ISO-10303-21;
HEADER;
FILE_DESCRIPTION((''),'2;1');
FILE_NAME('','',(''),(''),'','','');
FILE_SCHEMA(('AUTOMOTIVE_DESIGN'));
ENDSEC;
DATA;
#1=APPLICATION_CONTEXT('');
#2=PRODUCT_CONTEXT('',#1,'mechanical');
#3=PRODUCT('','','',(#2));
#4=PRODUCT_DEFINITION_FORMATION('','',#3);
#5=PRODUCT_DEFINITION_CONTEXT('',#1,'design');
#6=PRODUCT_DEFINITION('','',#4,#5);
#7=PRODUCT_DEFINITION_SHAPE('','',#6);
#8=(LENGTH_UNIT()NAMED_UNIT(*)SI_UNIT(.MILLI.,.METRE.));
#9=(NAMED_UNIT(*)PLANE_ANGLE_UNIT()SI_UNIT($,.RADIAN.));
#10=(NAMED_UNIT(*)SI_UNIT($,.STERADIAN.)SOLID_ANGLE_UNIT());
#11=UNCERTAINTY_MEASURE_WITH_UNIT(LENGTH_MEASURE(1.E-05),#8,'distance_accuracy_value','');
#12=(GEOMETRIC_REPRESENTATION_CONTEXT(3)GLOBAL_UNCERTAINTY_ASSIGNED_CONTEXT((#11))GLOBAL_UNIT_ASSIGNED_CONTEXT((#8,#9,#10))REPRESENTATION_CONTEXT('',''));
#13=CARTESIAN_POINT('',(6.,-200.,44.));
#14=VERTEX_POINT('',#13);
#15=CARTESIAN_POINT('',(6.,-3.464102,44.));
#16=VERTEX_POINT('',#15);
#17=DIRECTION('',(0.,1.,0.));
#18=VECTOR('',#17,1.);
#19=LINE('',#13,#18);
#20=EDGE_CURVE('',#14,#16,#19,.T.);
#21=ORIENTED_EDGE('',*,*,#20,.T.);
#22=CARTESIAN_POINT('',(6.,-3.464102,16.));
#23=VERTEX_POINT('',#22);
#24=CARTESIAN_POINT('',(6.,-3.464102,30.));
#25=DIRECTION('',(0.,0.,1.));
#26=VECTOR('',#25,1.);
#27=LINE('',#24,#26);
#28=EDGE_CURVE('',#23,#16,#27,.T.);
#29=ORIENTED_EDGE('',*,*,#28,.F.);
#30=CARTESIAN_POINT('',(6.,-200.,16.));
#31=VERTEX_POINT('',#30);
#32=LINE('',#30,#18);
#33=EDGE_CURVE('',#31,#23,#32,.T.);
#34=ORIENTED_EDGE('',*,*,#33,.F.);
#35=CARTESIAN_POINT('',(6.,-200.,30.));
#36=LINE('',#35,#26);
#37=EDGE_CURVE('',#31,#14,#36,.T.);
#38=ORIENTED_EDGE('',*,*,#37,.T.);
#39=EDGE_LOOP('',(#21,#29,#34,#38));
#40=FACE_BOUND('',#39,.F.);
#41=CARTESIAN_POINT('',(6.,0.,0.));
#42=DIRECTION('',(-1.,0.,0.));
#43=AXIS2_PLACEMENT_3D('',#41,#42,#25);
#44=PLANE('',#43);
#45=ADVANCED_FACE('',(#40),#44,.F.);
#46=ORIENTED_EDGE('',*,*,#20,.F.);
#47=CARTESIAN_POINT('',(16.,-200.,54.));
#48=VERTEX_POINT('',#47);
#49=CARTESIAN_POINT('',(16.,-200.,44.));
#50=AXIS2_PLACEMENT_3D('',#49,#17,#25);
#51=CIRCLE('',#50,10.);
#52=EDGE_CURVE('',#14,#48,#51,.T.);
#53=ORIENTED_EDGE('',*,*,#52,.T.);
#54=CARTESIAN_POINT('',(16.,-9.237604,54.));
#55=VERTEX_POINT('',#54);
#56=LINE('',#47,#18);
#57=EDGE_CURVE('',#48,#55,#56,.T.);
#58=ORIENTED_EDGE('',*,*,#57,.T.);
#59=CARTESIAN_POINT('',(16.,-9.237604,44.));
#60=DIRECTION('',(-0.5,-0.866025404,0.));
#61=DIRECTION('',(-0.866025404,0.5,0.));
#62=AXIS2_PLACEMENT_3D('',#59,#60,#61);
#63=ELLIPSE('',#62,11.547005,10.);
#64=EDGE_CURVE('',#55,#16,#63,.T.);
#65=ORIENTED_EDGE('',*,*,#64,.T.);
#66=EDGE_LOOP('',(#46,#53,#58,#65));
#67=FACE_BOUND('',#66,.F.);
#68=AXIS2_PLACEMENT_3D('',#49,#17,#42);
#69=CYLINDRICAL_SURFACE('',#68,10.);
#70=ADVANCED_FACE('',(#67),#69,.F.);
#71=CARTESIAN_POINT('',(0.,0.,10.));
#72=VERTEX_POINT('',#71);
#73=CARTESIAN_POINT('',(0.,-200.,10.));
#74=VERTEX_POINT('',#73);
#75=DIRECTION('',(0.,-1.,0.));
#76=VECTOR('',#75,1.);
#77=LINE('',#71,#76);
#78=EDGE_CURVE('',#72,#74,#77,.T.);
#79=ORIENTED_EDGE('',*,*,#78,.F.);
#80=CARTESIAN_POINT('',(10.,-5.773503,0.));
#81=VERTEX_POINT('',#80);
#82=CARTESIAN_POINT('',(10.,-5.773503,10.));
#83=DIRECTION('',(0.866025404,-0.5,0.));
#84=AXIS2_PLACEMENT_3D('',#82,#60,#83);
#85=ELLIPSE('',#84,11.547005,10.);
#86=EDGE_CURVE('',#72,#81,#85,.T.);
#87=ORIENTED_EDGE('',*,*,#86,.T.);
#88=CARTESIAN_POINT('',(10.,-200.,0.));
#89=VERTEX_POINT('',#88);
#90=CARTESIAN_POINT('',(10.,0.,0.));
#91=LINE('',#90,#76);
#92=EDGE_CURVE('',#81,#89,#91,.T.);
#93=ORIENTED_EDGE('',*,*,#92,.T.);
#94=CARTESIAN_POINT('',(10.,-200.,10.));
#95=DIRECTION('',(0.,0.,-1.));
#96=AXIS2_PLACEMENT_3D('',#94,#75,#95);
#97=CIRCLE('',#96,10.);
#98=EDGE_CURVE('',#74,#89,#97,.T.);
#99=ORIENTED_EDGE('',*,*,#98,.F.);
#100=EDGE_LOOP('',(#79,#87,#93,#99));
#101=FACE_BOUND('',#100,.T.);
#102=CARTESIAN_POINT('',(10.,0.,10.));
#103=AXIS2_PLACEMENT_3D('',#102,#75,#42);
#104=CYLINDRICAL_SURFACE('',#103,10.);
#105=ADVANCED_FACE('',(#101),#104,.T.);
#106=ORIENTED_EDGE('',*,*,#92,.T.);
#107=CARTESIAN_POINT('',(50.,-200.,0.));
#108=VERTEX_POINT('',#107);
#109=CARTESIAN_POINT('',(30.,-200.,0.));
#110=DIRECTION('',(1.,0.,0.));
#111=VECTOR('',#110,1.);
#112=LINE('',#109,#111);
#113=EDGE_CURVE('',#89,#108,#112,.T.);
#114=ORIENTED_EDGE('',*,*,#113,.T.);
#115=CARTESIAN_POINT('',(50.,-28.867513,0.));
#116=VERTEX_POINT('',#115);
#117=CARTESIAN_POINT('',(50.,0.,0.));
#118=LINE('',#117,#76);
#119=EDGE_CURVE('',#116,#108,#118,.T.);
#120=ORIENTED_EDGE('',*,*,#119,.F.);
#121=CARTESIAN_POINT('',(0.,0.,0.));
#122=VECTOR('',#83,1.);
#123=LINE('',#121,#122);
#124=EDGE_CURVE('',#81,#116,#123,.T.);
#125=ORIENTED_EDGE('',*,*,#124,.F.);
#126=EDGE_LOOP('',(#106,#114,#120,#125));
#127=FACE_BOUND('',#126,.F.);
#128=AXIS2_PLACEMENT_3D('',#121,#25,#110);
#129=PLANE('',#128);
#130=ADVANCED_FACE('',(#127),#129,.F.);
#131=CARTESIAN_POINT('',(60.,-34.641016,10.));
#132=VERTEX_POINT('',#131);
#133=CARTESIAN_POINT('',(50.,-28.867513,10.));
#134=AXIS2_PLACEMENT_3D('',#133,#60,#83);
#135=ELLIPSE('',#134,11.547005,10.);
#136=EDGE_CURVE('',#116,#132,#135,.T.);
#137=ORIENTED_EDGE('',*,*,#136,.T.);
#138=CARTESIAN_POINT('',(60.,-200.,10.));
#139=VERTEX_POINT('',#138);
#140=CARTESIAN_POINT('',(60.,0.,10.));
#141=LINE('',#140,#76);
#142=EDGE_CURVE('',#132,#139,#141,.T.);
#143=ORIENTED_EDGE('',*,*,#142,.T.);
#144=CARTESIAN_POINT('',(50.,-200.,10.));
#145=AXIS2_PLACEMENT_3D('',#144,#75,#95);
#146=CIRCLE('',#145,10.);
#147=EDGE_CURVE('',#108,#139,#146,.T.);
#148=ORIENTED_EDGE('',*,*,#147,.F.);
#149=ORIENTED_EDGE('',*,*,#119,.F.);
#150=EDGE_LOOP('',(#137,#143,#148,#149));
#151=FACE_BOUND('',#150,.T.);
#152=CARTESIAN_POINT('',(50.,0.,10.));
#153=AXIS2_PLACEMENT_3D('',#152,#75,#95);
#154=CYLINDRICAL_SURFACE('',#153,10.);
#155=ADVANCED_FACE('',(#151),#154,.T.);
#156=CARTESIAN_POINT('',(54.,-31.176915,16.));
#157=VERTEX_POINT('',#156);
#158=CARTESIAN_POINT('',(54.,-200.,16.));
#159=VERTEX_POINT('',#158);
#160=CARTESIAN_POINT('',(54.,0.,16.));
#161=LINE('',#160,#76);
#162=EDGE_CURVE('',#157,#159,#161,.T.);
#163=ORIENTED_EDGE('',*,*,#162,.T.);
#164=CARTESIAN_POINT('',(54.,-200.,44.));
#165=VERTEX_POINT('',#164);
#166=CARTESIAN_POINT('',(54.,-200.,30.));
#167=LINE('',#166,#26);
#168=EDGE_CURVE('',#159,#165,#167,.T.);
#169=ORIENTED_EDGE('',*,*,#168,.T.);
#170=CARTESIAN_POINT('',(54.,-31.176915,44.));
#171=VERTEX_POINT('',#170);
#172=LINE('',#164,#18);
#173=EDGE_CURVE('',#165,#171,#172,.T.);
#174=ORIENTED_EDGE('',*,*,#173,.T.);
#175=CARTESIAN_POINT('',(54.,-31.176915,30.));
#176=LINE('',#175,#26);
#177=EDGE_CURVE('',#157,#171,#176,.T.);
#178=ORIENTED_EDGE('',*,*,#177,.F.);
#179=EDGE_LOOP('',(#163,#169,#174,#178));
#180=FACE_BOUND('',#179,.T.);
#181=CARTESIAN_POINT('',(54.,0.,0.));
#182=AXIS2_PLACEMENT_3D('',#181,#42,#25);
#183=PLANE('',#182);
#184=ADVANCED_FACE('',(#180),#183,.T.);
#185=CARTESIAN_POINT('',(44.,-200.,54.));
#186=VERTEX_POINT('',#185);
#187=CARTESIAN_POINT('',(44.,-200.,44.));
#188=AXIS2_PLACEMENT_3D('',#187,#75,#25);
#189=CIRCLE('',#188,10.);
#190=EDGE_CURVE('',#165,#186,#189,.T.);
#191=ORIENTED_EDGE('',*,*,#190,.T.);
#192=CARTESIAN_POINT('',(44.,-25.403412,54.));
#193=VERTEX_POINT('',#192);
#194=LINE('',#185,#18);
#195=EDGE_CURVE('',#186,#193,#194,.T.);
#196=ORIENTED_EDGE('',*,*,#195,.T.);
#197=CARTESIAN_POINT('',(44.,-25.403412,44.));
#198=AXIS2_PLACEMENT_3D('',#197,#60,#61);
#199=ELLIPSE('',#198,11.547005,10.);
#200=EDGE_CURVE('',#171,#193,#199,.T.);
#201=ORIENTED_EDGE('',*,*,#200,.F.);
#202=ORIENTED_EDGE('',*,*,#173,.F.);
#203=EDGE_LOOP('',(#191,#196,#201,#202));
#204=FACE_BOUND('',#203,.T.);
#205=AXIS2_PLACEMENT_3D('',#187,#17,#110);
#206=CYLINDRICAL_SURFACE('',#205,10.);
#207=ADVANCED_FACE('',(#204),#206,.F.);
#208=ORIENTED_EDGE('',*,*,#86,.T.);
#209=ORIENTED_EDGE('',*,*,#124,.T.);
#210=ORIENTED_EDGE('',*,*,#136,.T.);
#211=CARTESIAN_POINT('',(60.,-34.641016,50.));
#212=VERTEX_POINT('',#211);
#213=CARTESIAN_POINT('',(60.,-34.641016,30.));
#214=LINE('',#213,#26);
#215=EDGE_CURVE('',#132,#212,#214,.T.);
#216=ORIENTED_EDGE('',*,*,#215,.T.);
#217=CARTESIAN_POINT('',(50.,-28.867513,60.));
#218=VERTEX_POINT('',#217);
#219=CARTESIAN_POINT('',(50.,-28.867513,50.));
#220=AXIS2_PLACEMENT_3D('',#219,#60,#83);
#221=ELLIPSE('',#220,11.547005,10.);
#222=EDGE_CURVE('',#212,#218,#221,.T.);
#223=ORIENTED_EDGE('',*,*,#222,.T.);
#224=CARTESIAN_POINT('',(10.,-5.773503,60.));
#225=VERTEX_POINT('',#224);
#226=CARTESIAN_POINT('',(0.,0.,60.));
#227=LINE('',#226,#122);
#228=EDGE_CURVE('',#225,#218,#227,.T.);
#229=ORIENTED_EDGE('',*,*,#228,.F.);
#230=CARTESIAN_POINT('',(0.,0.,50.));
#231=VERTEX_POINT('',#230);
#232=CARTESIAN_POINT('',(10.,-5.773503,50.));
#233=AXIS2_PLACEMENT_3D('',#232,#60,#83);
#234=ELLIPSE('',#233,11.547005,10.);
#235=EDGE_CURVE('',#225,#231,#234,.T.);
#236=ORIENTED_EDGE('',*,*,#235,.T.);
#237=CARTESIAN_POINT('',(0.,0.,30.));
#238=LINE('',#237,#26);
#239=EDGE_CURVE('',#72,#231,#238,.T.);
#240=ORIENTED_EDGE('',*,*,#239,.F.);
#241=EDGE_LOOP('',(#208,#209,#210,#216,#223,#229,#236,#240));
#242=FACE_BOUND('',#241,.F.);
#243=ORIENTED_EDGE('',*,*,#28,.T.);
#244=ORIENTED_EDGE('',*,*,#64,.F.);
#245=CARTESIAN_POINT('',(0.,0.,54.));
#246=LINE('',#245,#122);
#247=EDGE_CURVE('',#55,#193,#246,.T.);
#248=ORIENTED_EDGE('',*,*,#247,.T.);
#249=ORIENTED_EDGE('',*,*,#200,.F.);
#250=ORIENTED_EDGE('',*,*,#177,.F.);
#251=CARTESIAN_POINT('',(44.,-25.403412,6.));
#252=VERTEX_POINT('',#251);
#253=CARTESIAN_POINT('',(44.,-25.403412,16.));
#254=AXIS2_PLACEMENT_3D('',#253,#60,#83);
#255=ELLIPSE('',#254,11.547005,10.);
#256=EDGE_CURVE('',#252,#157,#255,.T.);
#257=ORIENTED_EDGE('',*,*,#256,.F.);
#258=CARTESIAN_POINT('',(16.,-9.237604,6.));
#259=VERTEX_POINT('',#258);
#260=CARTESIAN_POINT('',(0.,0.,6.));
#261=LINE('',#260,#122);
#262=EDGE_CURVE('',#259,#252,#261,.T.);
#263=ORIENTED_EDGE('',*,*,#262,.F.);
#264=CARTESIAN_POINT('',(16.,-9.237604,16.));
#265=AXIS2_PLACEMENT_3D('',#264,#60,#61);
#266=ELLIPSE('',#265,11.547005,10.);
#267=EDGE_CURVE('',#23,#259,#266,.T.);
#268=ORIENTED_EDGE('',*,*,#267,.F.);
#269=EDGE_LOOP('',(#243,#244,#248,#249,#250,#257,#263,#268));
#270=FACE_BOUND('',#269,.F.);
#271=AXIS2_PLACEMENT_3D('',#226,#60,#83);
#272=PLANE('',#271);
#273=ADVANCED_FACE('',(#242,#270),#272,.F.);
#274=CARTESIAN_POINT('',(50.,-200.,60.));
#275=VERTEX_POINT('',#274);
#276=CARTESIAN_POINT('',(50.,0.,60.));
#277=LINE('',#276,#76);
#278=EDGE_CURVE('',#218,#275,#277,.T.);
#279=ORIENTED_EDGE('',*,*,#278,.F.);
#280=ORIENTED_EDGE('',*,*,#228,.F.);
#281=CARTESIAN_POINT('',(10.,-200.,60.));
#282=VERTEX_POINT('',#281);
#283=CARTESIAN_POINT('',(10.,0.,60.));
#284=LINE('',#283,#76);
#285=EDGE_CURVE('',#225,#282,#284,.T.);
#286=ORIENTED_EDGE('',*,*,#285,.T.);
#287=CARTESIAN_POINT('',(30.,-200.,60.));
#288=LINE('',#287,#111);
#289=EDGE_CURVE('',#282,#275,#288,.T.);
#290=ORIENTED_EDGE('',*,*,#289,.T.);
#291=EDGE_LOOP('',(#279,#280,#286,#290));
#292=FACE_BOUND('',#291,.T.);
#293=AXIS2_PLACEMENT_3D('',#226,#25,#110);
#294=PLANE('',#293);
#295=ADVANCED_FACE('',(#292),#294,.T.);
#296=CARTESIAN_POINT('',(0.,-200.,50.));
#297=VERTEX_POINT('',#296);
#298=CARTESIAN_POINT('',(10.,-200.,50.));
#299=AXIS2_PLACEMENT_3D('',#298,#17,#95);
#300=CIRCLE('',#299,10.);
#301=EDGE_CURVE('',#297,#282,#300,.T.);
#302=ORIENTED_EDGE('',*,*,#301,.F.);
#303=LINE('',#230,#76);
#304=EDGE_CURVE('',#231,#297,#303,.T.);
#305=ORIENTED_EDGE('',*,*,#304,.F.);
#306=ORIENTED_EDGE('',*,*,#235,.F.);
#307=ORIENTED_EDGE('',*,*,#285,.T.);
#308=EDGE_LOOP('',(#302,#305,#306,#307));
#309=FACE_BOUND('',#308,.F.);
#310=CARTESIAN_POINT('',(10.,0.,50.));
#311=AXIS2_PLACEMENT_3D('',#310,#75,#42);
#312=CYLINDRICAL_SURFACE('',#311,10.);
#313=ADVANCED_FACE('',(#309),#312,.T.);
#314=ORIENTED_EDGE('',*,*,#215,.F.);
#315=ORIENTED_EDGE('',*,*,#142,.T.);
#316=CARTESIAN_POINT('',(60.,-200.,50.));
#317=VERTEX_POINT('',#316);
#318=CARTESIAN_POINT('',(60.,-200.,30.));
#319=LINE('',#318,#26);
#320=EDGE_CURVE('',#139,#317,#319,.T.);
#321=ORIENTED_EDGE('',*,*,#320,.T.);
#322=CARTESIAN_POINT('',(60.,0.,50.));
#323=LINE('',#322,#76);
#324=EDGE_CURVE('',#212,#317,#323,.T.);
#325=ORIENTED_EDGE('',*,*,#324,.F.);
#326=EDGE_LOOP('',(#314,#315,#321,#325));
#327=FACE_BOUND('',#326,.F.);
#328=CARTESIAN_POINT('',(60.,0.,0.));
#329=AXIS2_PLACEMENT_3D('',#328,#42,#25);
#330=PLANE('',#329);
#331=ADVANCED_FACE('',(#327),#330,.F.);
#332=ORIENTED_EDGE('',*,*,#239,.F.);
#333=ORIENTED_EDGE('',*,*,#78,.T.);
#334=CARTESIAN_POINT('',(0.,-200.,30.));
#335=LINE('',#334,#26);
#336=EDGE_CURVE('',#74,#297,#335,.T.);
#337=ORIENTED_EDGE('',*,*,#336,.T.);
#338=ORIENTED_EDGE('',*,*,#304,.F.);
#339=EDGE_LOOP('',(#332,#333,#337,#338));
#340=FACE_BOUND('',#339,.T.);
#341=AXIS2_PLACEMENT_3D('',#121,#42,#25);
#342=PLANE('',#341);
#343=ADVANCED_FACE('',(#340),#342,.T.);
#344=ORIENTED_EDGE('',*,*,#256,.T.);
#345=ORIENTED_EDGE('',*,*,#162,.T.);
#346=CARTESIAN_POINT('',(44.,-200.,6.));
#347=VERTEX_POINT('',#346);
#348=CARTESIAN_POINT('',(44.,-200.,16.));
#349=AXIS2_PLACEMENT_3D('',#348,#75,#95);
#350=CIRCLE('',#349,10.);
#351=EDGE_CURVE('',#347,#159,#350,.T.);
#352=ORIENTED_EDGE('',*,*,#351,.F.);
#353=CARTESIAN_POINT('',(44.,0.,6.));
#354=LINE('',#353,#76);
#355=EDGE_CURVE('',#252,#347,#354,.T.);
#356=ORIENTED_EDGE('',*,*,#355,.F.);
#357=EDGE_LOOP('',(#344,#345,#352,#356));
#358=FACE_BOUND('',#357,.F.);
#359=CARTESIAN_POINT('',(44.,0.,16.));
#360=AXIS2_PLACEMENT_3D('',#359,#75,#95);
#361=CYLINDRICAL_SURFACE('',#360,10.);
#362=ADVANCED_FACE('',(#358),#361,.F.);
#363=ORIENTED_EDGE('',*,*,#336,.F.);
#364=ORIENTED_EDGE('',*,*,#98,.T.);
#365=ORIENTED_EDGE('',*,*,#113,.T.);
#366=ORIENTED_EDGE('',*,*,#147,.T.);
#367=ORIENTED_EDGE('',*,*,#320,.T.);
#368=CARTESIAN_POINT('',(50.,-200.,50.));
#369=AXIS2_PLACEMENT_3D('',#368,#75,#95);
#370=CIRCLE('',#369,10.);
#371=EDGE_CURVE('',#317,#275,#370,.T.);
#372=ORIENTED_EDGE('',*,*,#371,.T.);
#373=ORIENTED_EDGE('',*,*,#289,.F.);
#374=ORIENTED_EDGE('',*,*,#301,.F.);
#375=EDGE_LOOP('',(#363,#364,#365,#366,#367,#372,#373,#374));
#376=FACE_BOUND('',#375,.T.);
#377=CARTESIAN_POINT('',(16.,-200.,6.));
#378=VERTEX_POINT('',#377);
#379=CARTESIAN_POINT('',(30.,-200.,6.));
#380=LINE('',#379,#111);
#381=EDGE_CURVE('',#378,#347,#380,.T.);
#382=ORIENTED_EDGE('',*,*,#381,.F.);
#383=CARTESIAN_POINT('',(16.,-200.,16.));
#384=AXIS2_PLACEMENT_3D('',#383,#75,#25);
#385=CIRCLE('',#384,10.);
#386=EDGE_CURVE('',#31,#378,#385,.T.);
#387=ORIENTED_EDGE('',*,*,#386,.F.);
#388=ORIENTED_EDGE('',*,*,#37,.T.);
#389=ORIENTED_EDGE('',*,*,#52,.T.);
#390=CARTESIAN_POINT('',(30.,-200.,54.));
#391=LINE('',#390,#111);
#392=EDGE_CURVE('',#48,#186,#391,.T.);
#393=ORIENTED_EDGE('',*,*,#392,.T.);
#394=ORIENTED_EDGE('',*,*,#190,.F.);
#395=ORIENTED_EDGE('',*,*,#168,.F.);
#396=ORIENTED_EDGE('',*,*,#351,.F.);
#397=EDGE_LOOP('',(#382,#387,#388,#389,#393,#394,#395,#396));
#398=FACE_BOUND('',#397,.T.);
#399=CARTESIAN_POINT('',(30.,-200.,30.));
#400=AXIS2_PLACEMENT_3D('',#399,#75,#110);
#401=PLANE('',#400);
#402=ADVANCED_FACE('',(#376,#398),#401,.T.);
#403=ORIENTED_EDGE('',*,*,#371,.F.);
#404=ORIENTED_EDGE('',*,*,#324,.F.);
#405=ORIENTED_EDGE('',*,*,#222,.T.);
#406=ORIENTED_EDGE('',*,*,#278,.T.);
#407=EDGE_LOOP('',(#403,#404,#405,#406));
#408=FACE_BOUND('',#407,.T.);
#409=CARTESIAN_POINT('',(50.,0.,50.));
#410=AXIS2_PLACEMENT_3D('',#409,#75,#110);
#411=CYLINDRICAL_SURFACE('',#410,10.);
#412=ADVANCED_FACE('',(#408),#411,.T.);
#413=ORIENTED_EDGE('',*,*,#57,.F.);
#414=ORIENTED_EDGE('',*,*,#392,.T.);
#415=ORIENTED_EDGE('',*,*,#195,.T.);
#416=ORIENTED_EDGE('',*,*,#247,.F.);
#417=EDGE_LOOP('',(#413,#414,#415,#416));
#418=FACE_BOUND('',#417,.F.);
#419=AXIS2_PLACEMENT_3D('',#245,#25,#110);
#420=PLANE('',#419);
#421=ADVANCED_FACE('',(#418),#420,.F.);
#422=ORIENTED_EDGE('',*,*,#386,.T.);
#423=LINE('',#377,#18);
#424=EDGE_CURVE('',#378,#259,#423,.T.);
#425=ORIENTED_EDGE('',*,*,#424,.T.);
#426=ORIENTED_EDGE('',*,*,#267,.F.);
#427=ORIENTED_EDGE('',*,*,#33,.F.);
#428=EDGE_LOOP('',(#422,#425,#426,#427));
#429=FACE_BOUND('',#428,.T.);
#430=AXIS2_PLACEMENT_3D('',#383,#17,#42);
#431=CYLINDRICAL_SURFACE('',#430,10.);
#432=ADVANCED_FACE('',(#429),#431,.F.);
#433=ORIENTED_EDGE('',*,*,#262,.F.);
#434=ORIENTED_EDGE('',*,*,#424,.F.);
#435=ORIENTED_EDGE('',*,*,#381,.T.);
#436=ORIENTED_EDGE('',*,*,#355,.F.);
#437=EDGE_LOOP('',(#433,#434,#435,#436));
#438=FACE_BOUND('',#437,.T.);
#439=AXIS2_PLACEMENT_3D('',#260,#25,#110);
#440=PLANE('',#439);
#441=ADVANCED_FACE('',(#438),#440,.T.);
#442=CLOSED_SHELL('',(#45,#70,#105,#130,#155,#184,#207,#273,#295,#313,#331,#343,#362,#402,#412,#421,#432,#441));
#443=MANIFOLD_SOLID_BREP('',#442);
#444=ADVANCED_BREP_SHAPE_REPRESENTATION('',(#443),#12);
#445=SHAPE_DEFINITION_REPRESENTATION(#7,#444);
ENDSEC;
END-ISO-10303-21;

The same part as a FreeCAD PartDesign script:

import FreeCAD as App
import Part
import Sketcher

V = App.Vector
Q = App.Units.Quantity


def edges_at(feature, points):
    """Names of the edges that pass closest to the given points."""
    edges = feature.Shape.Edges
    near = lambda p: min(range(len(edges)), key=lambda i: edges[i].distToShape(Part.Vertex(*p))[0])
    return sorted({f"Edge{near(p) + 1}" for p in points})


def faces_at(feature, points):
    """Names of the faces that lie closest to the given points."""
    faces = feature.Shape.Faces
    near = lambda p: min(range(len(faces)), key=lambda i: faces[i].distToShape(Part.Vertex(*p))[0])
    return sorted({f"Face{near(p) + 1}" for p in points})


def add_polygon(sketch, points):
    """Adds a closed chain of lines whose ends are joined by coincident constraints."""
    first, n = sketch.GeometryCount, len(points)
    for a, b in zip(points, points[1:] + points[:1]):
        sketch.addGeometry(Part.LineSegment(App.Vector(*a, 0), App.Vector(*b, 0)), False)
    for i in range(n):
        sketch.addConstraint(Sketcher.Constraint("Coincident", first + i, 2, first + (i + 1) % n, 1))

doc = App.newDocument("Part")
body = doc.addObject("PartDesign::Body", "Body")

# Sketch on XZ plane
sketch1 = body.newObject("Sketcher::SketchObject", "Sketch")
sketch1.AttachmentSupport = (doc.getObject("XZ_Plane"), [""])
sketch1.MapMode = "FlatFace"
add_polygon(sketch1, [(0, 60), (0, 0), (60, 0), (60, 60)])  # lines 0-3
sketch1.addConstraint([
    Sketcher.Constraint("Vertical", 0),
    Sketcher.Constraint("Horizontal", 1),
    Sketcher.Constraint("Vertical", 2),
    Sketcher.Constraint("Horizontal", 3),
    Sketcher.Constraint("Coincident", 0, 2, -1, 1),
    Sketcher.Constraint("Equal", 3, 0),
    Sketcher.Constraint("DistanceX", 1, 1, 1, 2, Q("60 mm")),
])
pad1 = body.newObject("PartDesign::Pad", "Pad")
pad1.Profile = sketch1
pad1.Length = 200
doc.recompute()

thickness = body.newObject("PartDesign::Thickness", "Thickness")
thickness.Base = (pad1, faces_at(pad1, [(30, -200, 30), (30, 0, 30)]))
thickness.Value = 6
thickness.Reversed = True
thickness.Join = "Arc"
doc.recompute()

fillet = body.newObject("PartDesign::Fillet", "Fillet")
fillet.Base = (thickness, edges_at(thickness, [
    (60, -100, 60),
    (0, -100, 60),
    (60, -100, 0),
    (6, -100, 6),
    (0, -100, 0),
    (54, -100, 6),
    (54, -100, 54),
    (6, -100, 54),
]))
fillet.Radius = 10

# Sketch on XY plane
sketch2 = body.newObject("Sketcher::SketchObject", "Sketch001")
sketch2.AttachmentSupport = (doc.getObject("XY_Plane"), [""])
sketch2.MapMode = "FlatFace"
sketch2.AttachmentOffset = App.Placement(V(0, 0, 60), App.Rotation())
add_polygon(sketch2, [(0, 0), (70, -40), (70, 0)])  # lines 0-2
sketch2.addConstraint([
    Sketcher.Constraint("Vertical", 1),
    Sketcher.Constraint("Horizontal", 2),
    Sketcher.Constraint("Coincident", 2, 2, -1, 1),
    Sketcher.Constraint("DistanceX", 2, 2, 2, 1, Q("70 mm")),
    Sketcher.Constraint("Angle", 0, Q("-30 deg")),
])
pocket1 = body.newObject("PartDesign::Pocket", "Pocket")
pocket1.Profile = sketch2
pocket1.Type = "ThroughAll"

doc.recompute()
